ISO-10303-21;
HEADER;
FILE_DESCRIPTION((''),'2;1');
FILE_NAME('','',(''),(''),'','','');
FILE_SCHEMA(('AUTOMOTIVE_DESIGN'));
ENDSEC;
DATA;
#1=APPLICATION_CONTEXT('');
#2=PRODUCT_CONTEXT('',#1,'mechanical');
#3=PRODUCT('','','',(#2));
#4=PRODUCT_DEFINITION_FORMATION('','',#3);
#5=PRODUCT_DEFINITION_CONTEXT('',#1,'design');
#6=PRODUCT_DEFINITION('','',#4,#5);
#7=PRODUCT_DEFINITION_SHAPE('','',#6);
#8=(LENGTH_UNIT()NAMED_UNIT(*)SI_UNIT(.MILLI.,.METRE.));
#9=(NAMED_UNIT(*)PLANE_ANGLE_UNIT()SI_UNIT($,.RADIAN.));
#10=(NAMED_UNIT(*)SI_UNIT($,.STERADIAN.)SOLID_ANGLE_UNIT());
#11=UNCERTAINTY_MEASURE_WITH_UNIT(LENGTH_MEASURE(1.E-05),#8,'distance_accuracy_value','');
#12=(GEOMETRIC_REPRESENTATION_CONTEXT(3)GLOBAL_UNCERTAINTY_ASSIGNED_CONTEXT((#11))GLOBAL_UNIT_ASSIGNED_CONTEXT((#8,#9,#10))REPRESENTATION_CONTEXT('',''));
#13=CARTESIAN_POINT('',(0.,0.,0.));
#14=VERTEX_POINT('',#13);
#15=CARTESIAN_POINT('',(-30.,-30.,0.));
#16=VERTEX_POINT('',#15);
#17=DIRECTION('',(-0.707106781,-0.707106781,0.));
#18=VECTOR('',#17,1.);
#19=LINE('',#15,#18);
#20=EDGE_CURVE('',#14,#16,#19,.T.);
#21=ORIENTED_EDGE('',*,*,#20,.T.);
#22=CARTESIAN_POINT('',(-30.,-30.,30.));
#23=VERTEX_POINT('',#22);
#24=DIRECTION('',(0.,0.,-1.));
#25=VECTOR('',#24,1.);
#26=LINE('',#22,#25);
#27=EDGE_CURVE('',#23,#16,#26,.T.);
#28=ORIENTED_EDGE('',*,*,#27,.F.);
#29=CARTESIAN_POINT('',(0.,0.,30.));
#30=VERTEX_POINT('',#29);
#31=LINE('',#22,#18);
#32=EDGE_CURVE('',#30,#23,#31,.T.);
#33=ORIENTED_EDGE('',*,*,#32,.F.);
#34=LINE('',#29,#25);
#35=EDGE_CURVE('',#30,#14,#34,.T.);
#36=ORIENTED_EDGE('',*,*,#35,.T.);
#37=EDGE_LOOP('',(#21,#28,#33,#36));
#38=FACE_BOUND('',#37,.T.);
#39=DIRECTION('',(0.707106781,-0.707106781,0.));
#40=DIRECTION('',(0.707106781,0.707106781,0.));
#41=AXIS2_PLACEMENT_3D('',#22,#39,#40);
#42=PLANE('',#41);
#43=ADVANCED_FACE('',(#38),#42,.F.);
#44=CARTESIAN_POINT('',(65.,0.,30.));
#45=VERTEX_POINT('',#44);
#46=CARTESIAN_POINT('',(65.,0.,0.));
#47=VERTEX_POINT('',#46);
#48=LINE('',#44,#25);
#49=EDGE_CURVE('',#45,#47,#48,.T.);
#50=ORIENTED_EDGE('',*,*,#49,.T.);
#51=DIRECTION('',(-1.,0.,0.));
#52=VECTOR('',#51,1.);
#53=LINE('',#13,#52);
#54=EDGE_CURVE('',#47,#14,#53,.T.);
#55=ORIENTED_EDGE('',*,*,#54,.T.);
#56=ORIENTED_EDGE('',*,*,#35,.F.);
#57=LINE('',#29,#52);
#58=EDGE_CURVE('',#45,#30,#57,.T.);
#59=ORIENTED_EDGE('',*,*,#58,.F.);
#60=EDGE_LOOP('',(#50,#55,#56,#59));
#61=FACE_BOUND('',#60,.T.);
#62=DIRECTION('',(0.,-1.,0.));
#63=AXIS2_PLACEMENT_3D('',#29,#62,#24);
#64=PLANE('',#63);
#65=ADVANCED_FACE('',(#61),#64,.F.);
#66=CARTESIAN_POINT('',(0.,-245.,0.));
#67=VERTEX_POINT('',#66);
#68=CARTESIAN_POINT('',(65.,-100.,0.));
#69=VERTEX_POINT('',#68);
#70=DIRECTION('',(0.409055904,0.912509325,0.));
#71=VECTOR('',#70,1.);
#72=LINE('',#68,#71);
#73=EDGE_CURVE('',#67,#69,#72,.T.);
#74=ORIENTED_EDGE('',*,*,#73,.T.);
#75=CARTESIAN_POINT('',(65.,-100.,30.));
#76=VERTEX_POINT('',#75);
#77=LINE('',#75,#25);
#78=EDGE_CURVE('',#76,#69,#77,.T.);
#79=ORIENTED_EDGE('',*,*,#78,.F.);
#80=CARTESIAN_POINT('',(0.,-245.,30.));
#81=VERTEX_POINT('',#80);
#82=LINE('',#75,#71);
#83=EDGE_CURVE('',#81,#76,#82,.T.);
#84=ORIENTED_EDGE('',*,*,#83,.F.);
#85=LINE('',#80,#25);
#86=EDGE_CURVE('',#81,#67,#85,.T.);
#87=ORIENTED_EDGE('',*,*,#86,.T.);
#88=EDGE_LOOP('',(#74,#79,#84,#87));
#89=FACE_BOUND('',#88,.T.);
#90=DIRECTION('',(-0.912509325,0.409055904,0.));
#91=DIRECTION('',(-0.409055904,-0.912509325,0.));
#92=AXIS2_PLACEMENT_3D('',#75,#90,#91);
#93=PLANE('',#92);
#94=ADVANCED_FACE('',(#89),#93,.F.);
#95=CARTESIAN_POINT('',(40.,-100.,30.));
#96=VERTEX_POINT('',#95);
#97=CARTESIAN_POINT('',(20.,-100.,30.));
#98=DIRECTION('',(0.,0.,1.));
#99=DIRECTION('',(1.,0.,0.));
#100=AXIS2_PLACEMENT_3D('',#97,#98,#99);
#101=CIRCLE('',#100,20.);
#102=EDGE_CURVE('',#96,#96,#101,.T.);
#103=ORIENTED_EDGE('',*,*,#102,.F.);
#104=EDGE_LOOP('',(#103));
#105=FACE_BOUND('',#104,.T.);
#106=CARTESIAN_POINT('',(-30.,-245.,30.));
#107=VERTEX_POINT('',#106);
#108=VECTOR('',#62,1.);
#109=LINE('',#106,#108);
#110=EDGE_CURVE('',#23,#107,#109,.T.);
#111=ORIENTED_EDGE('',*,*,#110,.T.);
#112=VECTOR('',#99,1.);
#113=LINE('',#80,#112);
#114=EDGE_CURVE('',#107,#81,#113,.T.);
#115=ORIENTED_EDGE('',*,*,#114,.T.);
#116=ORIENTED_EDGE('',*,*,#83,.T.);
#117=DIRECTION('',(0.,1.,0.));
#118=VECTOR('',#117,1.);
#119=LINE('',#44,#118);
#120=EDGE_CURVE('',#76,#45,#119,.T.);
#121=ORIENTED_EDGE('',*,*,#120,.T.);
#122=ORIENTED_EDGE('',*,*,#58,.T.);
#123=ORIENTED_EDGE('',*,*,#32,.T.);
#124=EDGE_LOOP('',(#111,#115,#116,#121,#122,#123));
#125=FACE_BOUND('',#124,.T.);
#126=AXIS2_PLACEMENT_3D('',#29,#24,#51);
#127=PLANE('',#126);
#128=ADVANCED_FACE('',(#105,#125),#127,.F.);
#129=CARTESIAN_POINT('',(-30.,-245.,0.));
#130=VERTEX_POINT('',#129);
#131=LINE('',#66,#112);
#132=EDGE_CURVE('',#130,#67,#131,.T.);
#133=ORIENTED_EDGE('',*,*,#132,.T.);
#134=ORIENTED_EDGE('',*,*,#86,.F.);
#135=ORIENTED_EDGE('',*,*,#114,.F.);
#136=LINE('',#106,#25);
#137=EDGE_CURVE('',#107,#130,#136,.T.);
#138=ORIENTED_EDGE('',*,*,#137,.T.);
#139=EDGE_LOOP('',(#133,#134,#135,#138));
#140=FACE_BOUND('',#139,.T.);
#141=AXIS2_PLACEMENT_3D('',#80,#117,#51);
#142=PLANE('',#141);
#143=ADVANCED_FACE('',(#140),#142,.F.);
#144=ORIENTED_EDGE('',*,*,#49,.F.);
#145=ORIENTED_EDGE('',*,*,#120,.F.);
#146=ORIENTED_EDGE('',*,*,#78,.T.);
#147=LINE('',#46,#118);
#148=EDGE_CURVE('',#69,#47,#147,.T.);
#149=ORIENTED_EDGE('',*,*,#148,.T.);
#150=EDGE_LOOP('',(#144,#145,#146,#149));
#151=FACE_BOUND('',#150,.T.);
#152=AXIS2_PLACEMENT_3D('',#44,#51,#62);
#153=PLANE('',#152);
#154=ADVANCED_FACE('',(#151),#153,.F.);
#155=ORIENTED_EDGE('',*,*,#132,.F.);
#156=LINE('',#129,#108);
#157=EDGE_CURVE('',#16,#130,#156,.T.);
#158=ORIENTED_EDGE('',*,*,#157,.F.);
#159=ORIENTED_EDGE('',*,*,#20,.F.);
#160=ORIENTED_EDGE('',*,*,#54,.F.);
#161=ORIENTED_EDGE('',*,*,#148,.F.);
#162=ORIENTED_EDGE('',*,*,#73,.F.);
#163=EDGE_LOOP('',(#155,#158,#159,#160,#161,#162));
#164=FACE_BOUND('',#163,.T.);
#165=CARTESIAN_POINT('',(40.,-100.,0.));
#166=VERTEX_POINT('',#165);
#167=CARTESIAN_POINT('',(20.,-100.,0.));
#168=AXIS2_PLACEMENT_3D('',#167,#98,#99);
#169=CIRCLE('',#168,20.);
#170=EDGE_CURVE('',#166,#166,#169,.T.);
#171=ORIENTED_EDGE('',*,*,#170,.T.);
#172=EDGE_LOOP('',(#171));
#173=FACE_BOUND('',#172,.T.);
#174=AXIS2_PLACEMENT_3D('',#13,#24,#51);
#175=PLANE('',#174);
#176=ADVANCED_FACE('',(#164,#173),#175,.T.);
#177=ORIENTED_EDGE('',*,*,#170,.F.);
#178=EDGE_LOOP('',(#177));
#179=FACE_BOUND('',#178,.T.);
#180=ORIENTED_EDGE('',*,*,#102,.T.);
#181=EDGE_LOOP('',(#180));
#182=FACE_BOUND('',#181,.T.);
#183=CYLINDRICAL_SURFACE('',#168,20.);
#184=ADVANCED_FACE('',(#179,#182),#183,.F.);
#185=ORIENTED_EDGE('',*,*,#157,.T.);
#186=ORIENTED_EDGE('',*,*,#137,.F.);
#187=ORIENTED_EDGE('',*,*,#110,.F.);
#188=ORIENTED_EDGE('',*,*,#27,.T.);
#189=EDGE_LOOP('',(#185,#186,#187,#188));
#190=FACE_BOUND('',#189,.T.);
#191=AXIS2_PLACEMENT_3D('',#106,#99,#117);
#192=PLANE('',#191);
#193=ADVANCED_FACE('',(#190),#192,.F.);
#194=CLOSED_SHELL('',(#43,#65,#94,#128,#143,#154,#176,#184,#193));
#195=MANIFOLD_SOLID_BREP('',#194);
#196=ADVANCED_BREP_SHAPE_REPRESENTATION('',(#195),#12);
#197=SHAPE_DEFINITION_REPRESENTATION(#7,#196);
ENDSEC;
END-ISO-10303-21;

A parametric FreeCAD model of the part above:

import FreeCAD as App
import Part
import Sketcher

V = App.Vector
Q = App.Units.Quantity


def add_polygon(sketch, points):
    """Adds a closed chain of lines whose ends are joined by coincident constraints."""
    first, n = sketch.GeometryCount, len(points)
    for a, b in zip(points, points[1:] + points[:1]):
        sketch.addGeometry(Part.LineSegment(App.Vector(*a, 0), App.Vector(*b, 0)), False)
    for i in range(n):
        sketch.addConstraint(Sketcher.Constraint("Coincident", first + i, 2, first + (i + 1) % n, 1))

doc = App.newDocument("Part")
body = doc.addObject("PartDesign::Body", "Body")

sketch1 = doc.addObject("Sketcher::SketchObject", "Sketch")
body.addObject(sketch1)
sketch1.AttachmentSupport = (doc.XY_Plane, [""])
sketch1.MapMode = "FlatFace"
add_polygon(sketch1, [(65, 0), (0, 0), (-30, -30), (-30, -245), (0, -245), (65, -100)])
sketch1.addConstraint([
    Sketcher.Constraint("Horizontal", 0),
    Sketcher.Constraint("Vertical", 2),
    Sketcher.Constraint("Horizontal", 3),
    Sketcher.Constraint("Vertical", 5),
    Sketcher.Constraint("Coincident", 0, 2, -1, 1),
    Sketcher.Constraint("PointOnObject", 3, 2, -2),
    Sketcher.Constraint("DistanceX", 0, 2, 0, 1, Q("65 mm")),
    Sketcher.Constraint("DistanceX", 3, 1, 3, 2, Q("30 mm")),
    Sketcher.Constraint("DistanceY", 2, 2, 2, 1, Q("215 mm")),
    Sketcher.Constraint("DistanceY", 5, 1, 5, 2, Q("100 mm")),
    Sketcher.Constraint("Angle", 1, Q("-135 deg")),
])
pad1 = doc.addObject("PartDesign::Pad", "Pad")
body.addObject(pad1)
pad1.Profile = sketch1
pad1.Length = 30

sketch2 = doc.addObject("Sketcher::SketchObject", "Sketch001")
body.addObject(sketch2)
sketch2.AttachmentSupport = (doc.XY_Plane, [""])
sketch2.MapMode = "FlatFace"
sketch2.AttachmentOffset = App.Placement(V(0, 0, 30), App.Rotation())
sketch2.addGeometry(Part.Circle(V(20, -100, 0), V(0, 0, 1), 20), False)
sketch2.addConstraint([
    Sketcher.Constraint("Diameter", 0, Q("40 mm")),
    Sketcher.Constraint("DistanceX", -1, 1, 0, 3, Q("20 mm")),
    Sketcher.Constraint("DistanceY", 0, 3, -1, 1, Q("100 mm")),
])
pocket1 = doc.addObject("PartDesign::Pocket", "Pocket")
body.addObject(pocket1)
pocket1.Profile = sketch2
pocket1.Type = "ThroughAll"

doc.recompute()
